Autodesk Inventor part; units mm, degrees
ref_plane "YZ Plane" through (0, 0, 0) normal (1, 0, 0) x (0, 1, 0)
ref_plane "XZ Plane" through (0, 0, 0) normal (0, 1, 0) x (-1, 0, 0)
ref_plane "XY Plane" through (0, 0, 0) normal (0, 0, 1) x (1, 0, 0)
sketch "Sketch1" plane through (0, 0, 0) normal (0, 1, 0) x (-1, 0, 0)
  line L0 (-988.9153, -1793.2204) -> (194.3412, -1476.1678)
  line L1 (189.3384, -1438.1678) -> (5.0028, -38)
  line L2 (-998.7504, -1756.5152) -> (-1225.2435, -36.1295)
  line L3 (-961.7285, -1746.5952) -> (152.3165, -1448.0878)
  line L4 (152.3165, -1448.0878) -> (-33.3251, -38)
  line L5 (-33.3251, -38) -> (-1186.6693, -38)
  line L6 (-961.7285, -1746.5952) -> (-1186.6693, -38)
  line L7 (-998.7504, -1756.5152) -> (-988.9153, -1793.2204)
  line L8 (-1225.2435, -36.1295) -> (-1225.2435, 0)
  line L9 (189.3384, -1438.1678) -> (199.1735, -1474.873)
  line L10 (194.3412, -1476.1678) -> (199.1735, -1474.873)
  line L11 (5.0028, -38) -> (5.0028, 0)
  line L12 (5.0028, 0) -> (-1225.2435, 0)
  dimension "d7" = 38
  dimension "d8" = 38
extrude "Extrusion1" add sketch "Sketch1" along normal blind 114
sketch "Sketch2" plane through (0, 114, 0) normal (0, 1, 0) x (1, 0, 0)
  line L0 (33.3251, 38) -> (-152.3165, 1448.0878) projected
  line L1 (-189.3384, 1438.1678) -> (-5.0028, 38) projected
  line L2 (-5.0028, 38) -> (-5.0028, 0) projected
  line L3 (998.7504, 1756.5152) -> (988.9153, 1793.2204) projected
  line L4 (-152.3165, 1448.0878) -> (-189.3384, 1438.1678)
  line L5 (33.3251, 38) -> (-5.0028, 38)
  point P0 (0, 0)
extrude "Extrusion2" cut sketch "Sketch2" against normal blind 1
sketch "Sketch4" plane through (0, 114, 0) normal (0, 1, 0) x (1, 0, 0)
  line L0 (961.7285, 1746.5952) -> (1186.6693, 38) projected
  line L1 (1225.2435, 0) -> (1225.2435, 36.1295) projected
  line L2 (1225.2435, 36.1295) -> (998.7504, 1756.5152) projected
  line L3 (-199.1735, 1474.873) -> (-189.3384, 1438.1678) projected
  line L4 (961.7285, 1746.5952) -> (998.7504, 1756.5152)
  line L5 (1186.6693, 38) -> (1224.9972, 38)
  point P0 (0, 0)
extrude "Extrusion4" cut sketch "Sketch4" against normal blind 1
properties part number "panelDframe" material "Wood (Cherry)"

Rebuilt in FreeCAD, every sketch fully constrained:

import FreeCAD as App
import Part
import Sketcher
Q = App.Units.Quantity


def add_polygon(sketch, points):
    """Adds a closed chain of lines whose ends are joined by coincident constraints."""
    first, n = sketch.GeometryCount, len(points)
    for a, b in zip(points, points[1:] + points[:1]):
        sketch.addGeometry(Part.LineSegment(App.Vector(*a, 0), App.Vector(*b, 0)), False)
    for i in range(n):
        sketch.addConstraint(Sketcher.Constraint("Coincident", first + i, 2, first + (i + 1) % n, 1))

doc = App.newDocument("Part")
params = doc.addObject("Spreadsheet::Sheet", "Params")
for row, (alias, value) in enumerate([
    ("sketch1_height", "38 mm"),
    ("sketch1_length", "38 mm"),
    ("pad1_length", "114 mm"),
    ("pocket1_length", "1 mm"),
    ("pocket2_length", "1 mm"),
], start=1):
    params.set(f"A{row}", alias)
    params.set(f"B{row}", "=" + value)
    params.setAlias(f"B{row}", alias)

body = doc.addObject("PartDesign::Body", "Body")

sketch1 = doc.addObject("Sketcher::SketchObject", "Sketch")
body.addObject(sketch1)
sketch1.AttachmentSupport = (doc.XZ_Plane, [""])
sketch1.MapMode = "FlatFace"
add_polygon(sketch1, [(999, -1757), (989, -1793), (-194, -1476), (-199, -1475), (-189, -1438), (-5, -38), (-5, 0), (1225, 0), (1225, -36)])
add_polygon(sketch1, [(-152, -1448), (962, -1747), (1187, -38), (33, -38)])
sketch1.addConstraint([
    Sketcher.Constraint("Vertical", 5),
    Sketcher.Constraint("Horizontal", 6),
    Sketcher.Constraint("Vertical", 7),
    Sketcher.Constraint("Horizontal", 11),
    Sketcher.Constraint("PointOnObject", 5, 2, -1),
    Sketcher.Constraint("Perpendicular", 0, 1),
    Sketcher.Constraint("Parallel", 1, 2),
    Sketcher.Constraint("Perpendicular", 2, 3),
    Sketcher.Constraint("Parallel", 4, 8),
    Sketcher.Constraint("Perpendicular", 3, 9),
    Sketcher.Constraint("Parallel", 8, 10),
    Sketcher.Constraint("Parallel", 10, 12),
    Sketcher.Constraint("Horizontal", 4, 2, 10, 2),
    Sketcher.Constraint("Equal", 0, 3),
    Sketcher.Constraint("DistanceY", 5, 1, 5, 2, Q("38 mm")),
    Sketcher.Constraint("Distance", 0, Q("38 mm")),
    Sketcher.Constraint("DistanceY", 1, 2, 3, 2, Q("38 mm")),
    Sketcher.Constraint("Angle", 0, Q("-105 deg")),
    Sketcher.Constraint("Angle", 4, Q("82.5 deg")),
    Sketcher.Constraint("DistanceY", 8, 2, 9, 2, Q("9.92 mm")),
    Sketcher.Constraint("DistanceY", 12, 2, 3, 2, Q("9.92 mm")),
    Sketcher.Constraint("DistanceX", 6, 1, 6, 2, Q("1230.2463 mm")),
    Sketcher.Constraint("DistanceX", 11, 2, 11, 1, Q("1153.3442 mm")),
    Sketcher.Constraint("DistanceY", 2, 2, -1, 1, Q("1474.873 mm")),
    Sketcher.Constraint("DistanceX", -1, 1, 11, 2, Q("33.325 mm")),
    Sketcher.Constraint("DistanceX", 9, 2, 8, 2, Q("37.022 mm")),
])
sketch1.setExpression("Constraints[27]", "Params.sketch1_height")
sketch1.setExpression("Constraints[28]", "Params.sketch1_length")
pad1 = doc.addObject("PartDesign::Pad", "Pad")
body.addObject(pad1)
pad1.Profile = sketch1
pad1.setExpression("Length", "Params.pad1_length")
pad1.Reversed = True

sketch2 = doc.addObject("Sketcher::SketchObject", "Sketch001")
body.addObject(sketch2)
sketch2.AttachmentSupport = (doc.XZ_Plane, [""])
sketch2.MapMode = "FlatFace"
sketch2.AttachmentOffset = App.Placement(App.Vector(0, 0, -114), App.Rotation())
add_polygon(sketch2, [(-5, -38), (33, -38), (-152, -1448), (-189, -1438)])
sketch2.addConstraint([
    Sketcher.Constraint("Horizontal", 0),
    Sketcher.Constraint("Parallel", 1, 3),
    Sketcher.Constraint("Angle", 2, Q("165 deg")),
    Sketcher.Constraint("DistanceY", 0, 2, -1, 1, Q("38 mm")),
    Sketcher.Constraint("Angle", 1, Q("-97.5 deg")),
    Sketcher.Constraint("DistanceX", 0, 1, 0, 2, Q("38.328 mm")),
    Sketcher.Constraint("DistanceX", -1, 1, 0, 2, Q("33.325 mm")),
    Sketcher.Constraint("Distance", 1, Q("1422.2554 mm")),
])
pocket1 = doc.addObject("PartDesign::Pocket", "Pocket")
body.addObject(pocket1)
pocket1.Profile = sketch2
pocket1.setExpression("Length", "Params.pocket1_length")
pocket1.Reversed = True

sketch3 = doc.addObject("Sketcher::SketchObject", "Sketch002")
body.addObject(sketch3)
sketch3.AttachmentSupport = (doc.XZ_Plane, [""])
sketch3.MapMode = "FlatFace"
sketch3.AttachmentOffset = App.Placement(App.Vector(0, 0, -114), App.Rotation())
add_polygon(sketch3, [(999, -1757), (962, -1747), (1187, -38), (1225, -38)])
sketch3.addConstraint([
    Sketcher.Constraint("Horizontal", 2),
    Sketcher.Constraint("Parallel", 1, 3),
    Sketcher.Constraint("Angle", 0, Q("165 deg")),
    Sketcher.Constraint("DistanceY", 1, 2, -1, 1, Q("38 mm")),
    Sketcher.Constraint("Angle", 1, Q("82.5 deg")),
    Sketcher.Constraint("DistanceX", 2, 1, 2, 2, Q("38.328 mm")),
    Sketcher.Constraint("DistanceX", 3, 2, 1, 2, Q("187.919 mm")),
    Sketcher.Constraint("DistanceX", -1, 1, 0, 2, Q("961.7285 mm")),
])
pocket2 = doc.addObject("PartDesign::Pocket", "Pocket001")
body.addObject(pocket2)
pocket2.Profile = sketch3
pocket2.setExpression("Length", "Params.pocket2_length")
pocket2.Reversed = True

doc.recompute()
